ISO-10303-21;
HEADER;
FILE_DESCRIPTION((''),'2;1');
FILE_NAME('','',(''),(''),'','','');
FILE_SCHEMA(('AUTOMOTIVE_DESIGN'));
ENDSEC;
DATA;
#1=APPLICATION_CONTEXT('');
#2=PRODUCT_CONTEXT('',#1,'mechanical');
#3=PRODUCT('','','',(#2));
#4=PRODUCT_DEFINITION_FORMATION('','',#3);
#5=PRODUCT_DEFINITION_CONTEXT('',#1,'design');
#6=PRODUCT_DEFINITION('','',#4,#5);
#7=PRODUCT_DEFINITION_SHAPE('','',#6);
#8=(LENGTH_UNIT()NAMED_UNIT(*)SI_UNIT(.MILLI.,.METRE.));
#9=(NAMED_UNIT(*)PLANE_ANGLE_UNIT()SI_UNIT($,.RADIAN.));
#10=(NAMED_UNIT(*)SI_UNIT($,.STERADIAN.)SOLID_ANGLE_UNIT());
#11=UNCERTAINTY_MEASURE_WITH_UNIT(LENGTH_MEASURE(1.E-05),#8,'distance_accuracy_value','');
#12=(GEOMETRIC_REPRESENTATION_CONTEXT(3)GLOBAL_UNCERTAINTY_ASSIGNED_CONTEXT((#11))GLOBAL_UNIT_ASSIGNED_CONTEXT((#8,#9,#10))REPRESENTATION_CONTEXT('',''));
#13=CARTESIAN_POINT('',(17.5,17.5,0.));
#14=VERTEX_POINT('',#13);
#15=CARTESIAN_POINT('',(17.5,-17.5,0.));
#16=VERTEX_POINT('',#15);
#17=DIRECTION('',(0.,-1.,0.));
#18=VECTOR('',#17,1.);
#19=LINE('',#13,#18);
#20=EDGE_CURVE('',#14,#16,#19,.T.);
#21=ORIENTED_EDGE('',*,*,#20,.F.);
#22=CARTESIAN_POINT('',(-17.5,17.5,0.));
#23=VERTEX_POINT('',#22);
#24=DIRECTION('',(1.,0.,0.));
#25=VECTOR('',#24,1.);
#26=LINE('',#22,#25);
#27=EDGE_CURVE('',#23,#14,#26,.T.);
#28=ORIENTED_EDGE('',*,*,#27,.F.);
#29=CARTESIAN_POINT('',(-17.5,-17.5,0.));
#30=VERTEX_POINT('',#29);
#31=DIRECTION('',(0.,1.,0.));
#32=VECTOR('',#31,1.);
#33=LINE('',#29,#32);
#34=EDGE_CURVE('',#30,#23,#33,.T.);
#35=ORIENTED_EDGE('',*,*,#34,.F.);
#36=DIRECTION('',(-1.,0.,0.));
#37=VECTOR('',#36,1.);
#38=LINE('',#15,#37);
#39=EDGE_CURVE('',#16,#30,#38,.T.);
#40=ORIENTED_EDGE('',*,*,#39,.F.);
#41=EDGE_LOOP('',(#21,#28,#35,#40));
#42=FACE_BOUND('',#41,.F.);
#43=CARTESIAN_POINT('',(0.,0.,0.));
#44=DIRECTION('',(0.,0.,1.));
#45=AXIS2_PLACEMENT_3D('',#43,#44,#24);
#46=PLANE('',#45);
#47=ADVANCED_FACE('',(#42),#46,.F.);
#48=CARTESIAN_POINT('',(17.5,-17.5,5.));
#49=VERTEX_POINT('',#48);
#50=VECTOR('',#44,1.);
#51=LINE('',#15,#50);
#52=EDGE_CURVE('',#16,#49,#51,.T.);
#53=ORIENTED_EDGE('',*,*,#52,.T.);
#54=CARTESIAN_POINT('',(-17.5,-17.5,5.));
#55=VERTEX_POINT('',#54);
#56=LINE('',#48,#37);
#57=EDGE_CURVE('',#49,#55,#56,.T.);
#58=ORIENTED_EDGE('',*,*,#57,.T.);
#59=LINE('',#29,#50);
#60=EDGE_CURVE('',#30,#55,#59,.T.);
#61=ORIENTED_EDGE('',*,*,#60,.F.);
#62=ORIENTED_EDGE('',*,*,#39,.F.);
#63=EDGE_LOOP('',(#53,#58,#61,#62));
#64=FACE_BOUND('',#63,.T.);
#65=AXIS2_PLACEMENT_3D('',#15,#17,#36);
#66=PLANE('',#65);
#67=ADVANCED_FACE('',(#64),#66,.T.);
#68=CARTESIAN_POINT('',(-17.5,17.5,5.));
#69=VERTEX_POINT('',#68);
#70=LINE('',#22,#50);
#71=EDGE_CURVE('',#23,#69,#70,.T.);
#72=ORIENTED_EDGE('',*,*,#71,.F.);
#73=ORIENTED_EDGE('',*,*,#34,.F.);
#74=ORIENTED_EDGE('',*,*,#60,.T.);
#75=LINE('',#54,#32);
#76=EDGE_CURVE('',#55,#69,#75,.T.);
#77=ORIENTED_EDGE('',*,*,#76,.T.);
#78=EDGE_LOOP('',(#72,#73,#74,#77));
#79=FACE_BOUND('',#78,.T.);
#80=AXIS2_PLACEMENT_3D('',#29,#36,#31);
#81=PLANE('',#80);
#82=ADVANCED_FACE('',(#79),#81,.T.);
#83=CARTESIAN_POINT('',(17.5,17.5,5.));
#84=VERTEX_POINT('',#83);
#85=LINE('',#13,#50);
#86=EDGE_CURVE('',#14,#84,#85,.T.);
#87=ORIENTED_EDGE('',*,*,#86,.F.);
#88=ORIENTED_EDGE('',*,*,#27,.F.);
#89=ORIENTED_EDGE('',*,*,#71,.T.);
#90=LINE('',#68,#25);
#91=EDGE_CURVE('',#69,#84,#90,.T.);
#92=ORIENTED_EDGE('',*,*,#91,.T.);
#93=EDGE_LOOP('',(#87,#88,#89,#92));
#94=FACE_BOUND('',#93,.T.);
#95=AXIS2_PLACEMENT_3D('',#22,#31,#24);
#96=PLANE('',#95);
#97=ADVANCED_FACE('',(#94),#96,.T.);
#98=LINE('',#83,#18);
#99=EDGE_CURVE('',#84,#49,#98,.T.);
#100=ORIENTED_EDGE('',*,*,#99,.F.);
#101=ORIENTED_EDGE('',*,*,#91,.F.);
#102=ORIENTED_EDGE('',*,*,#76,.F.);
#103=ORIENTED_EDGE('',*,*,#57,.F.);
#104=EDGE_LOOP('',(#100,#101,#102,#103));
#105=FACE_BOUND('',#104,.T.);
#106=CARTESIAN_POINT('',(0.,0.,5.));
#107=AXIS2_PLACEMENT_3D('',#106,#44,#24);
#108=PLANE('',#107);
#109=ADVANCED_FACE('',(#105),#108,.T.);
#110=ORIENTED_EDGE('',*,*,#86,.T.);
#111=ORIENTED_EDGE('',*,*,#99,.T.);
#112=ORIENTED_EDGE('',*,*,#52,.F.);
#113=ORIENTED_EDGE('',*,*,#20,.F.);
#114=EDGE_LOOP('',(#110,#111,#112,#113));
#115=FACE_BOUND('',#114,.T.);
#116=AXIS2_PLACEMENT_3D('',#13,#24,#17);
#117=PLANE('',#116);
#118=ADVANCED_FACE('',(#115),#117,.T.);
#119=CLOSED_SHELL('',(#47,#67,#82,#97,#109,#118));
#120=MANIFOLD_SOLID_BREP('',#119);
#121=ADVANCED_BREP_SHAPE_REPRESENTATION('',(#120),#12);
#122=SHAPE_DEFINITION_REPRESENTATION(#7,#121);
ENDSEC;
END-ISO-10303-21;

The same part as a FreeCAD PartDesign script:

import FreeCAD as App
import Part
import Sketcher
Q = App.Units.Quantity


def add_polygon(sketch, points):
    """Adds a closed chain of lines whose ends are joined by coincident constraints."""
    first, n = sketch.GeometryCount, len(points)
    for a, b in zip(points, points[1:] + points[:1]):
        sketch.addGeometry(Part.LineSegment(App.Vector(*a, 0), App.Vector(*b, 0)), False)
    for i in range(n):
        sketch.addConstraint(Sketcher.Constraint("Coincident", first + i, 2, first + (i + 1) % n, 1))

doc = App.newDocument("Part")
body = doc.addObject("PartDesign::Body", "Body")

sketch1 = body.newObject("Sketcher::SketchObject", "Sketch")
sketch1.AttachmentSupport = (doc.getObject("XY_Plane"), [""])
sketch1.MapMode = "FlatFace"
add_polygon(sketch1, [(18, 18), (-18, 18), (-18, -18), (18, -18)])
sketch1.addConstraint([
    Sketcher.Constraint("Horizontal", 0),
    Sketcher.Constraint("Vertical", 1),
    Sketcher.Constraint("Horizontal", 2),
    Sketcher.Constraint("Vertical", 3),
    Sketcher.Constraint("Symmetric", 0, 2, 2, 2, -1, 1),
    Sketcher.Constraint("Equal", 2, 1),
    Sketcher.Constraint("DistanceX", 0, 2, 0, 1, Q("35 mm")),
])
pad1 = body.newObject("PartDesign::Pad", "Pad")
pad1.Profile = sketch1
pad1.Length = 5

doc.recompute()
